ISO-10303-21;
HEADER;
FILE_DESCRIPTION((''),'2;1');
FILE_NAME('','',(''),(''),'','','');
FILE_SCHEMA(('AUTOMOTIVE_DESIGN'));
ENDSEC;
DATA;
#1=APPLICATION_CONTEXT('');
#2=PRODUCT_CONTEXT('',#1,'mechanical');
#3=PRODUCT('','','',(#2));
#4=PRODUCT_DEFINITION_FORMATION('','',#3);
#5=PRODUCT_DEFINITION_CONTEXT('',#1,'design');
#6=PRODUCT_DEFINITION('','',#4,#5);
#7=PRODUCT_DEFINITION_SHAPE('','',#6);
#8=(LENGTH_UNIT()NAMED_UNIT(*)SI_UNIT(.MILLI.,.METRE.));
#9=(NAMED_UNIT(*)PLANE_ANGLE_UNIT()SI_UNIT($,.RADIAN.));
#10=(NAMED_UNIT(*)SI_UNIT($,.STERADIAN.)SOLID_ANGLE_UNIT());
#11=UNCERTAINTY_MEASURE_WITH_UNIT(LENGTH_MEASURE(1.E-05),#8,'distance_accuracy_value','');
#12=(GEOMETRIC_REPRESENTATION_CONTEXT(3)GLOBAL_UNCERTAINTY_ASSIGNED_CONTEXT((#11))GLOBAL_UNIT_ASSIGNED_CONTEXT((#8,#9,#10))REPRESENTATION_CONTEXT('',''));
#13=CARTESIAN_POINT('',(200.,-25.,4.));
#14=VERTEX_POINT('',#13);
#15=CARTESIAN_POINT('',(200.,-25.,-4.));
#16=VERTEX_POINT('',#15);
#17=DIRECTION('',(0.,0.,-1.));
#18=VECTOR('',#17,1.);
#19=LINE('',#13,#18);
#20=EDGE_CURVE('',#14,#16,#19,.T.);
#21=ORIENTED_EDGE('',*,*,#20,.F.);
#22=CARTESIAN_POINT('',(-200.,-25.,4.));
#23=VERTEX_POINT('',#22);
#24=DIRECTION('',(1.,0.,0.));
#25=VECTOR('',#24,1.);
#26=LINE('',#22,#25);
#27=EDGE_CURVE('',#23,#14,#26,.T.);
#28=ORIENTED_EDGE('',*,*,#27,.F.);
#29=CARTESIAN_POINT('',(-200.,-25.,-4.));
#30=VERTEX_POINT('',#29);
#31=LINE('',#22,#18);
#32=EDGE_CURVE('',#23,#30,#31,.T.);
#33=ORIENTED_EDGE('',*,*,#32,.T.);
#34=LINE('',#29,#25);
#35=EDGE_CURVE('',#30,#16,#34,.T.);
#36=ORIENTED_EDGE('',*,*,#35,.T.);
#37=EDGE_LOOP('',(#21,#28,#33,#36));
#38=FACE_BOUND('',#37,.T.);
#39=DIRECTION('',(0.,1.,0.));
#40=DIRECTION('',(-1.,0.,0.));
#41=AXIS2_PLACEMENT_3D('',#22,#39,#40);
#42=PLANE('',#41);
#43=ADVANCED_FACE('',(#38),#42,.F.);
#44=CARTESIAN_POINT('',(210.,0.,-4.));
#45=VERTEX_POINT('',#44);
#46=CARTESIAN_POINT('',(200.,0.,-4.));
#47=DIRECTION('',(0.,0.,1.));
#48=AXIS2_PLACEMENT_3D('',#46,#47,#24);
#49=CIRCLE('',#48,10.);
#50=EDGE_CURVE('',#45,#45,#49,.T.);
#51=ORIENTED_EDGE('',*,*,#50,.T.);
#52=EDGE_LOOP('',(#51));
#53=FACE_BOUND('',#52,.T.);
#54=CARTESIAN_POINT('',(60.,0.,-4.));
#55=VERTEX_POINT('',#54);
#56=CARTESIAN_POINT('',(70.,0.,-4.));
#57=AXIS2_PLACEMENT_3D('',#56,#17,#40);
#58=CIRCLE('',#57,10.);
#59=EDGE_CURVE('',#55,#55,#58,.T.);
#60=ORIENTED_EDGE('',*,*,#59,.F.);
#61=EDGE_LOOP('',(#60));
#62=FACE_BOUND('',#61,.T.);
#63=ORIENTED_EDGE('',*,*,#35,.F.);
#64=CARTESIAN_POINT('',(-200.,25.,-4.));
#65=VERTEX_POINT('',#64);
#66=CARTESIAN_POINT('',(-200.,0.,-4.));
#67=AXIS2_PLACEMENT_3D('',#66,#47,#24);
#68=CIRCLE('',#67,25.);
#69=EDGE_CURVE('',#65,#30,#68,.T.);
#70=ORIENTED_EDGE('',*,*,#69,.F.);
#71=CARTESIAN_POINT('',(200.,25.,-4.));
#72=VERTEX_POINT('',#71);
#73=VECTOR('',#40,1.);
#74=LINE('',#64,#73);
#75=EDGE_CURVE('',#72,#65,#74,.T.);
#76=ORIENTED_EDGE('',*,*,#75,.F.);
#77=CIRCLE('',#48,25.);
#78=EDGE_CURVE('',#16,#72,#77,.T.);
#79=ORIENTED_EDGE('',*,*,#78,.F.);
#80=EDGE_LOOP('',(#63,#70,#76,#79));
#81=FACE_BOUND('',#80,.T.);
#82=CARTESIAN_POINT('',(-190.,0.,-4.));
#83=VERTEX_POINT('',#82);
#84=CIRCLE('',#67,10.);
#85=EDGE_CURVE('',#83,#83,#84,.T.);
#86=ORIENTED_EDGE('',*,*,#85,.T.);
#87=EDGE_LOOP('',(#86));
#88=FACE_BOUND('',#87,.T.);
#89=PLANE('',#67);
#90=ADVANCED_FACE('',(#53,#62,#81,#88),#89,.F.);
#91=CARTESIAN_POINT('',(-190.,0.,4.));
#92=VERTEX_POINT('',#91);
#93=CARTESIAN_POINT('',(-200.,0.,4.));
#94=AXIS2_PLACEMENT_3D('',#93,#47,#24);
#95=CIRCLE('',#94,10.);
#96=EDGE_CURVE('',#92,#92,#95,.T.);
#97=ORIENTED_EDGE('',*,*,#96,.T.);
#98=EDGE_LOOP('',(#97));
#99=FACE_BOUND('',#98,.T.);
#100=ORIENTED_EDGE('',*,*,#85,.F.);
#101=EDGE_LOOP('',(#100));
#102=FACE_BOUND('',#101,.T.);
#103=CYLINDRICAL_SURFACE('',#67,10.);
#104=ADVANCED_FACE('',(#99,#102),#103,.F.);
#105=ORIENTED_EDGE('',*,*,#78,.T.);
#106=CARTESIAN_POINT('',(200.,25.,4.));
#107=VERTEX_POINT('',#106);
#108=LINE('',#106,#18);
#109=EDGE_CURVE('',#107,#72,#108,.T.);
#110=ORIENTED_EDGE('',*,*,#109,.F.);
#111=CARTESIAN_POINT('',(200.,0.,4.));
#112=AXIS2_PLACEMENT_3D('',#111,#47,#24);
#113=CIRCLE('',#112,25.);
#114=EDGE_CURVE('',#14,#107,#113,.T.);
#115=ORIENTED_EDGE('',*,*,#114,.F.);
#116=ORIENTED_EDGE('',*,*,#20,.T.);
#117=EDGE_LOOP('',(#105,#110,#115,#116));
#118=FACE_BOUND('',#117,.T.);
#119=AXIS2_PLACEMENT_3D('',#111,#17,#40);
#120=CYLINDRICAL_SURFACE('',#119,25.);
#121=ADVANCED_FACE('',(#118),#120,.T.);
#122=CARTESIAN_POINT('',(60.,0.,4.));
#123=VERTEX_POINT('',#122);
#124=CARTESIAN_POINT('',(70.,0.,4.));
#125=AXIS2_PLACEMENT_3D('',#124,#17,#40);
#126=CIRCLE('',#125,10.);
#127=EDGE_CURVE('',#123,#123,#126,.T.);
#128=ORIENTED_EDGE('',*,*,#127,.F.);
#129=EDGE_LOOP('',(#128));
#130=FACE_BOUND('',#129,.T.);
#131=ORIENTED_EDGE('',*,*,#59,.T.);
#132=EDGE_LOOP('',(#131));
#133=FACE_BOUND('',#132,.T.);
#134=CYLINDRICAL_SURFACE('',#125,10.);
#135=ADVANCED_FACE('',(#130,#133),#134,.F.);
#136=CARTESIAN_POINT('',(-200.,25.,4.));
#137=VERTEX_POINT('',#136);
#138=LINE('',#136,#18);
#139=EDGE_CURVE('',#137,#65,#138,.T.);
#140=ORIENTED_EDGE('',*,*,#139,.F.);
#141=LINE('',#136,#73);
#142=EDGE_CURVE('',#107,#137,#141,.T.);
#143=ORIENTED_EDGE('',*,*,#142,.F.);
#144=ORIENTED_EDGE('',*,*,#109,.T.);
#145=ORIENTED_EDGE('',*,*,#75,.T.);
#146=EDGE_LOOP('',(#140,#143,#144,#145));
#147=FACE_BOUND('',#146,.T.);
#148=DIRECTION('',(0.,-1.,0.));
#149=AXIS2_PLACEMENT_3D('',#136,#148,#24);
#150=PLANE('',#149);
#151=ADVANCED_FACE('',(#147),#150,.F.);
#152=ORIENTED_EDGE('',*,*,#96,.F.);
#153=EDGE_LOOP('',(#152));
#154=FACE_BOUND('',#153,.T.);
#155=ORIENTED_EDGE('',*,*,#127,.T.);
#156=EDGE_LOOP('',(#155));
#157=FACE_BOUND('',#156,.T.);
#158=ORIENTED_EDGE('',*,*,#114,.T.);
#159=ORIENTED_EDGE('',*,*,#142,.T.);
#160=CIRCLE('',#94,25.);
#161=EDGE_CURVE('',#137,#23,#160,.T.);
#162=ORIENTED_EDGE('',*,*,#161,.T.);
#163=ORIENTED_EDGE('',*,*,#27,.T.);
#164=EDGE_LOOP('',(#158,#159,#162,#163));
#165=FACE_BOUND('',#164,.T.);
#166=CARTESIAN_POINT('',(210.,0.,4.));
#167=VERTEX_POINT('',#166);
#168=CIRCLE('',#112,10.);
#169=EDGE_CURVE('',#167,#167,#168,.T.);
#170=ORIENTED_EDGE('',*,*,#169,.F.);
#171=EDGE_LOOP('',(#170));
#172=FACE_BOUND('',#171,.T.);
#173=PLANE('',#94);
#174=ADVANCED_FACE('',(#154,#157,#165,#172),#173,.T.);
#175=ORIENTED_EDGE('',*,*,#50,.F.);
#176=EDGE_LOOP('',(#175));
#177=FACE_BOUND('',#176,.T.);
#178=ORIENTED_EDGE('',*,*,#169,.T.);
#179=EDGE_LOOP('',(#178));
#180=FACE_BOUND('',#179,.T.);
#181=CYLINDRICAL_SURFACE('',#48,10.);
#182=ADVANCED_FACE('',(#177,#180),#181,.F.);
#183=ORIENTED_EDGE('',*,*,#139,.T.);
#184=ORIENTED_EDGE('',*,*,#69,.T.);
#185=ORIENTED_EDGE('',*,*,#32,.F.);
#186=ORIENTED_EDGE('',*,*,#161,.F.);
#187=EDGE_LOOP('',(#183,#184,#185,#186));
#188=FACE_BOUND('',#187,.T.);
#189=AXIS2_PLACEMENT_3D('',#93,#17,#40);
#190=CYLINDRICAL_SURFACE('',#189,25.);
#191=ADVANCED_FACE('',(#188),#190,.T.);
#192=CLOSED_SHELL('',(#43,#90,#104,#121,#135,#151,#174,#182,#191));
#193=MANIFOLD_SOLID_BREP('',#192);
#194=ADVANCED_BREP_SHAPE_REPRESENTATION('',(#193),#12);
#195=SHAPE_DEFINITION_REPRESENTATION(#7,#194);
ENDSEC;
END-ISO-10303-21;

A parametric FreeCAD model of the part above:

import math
import FreeCAD as App
import Part
import Sketcher

doc = App.newDocument("Part")
body = doc.addObject("PartDesign::Body", "Body")

# Sketch on XY plane
sketch1 = doc.addObject("Sketcher::SketchObject", "Sketch")
body.addObject(sketch1)
sketch1.AttachmentSupport = (doc.XY_Plane, [""])
sketch1.MapMode = "FlatFace"
sketch1.addGeometry(Part.LineSegment(App.Vector(200, 25, 0), App.Vector(-200, 25, 0)), False)
sketch1.addGeometry(Part.ArcOfCircle(Part.Circle(App.Vector(-200, 0, 0), App.Vector(0, 0, 1), 25), math.radians(90), math.radians(270)), False)
sketch1.addGeometry(Part.LineSegment(App.Vector(-200, -25, 0), App.Vector(200, -25, 0)), False)
sketch1.addGeometry(Part.ArcOfCircle(Part.Circle(App.Vector(200, 0, 0), App.Vector(0, 0, 1), 25), math.radians(-90), math.radians(90)), False)
sketch1.addConstraint(Sketcher.Constraint("Tangent", 0, 2, 1, 1))
sketch1.addConstraint(Sketcher.Constraint("Tangent", 1, 2, 2, 1))
sketch1.addConstraint(Sketcher.Constraint("Tangent", 2, 2, 3, 1))
sketch1.addConstraint(Sketcher.Constraint("Tangent", 3, 2, 0, 1))
sketch1.addConstraint(Sketcher.Constraint("Horizontal", 0))
sketch1.addConstraint(Sketcher.Constraint("Horizontal", 2))
sketch1.addConstraint(Sketcher.Constraint("Symmetric", 1, 3, 3, 3, -1, 1))
sketch1.addConstraint(Sketcher.Constraint("Radius", 1, 25.0))
sketch1.addConstraint(Sketcher.Constraint("DistanceX", 0, 2, 0, 1, 400.0))
pad1 = doc.addObject("PartDesign::Pad", "Pad")
body.addObject(pad1)
pad1.Profile = sketch1
pad1.Length = 8
pad1.Midplane = True

# Sketch on XY plane
sketch2 = doc.addObject("Sketcher::SketchObject", "Sketch001")
body.addObject(sketch2)
sketch2.AttachmentSupport = (doc.XY_Plane, [""])
sketch2.MapMode = "FlatFace"
sketch2.AttachmentOffset = App.Placement(App.Vector(0, 0, 4), App.Rotation())
sketch2.addGeometry(Part.Circle(App.Vector(-200, 0, 0), App.Vector(0, 0, 1), 10), False)
sketch2.addGeometry(Part.Circle(App.Vector(200, 0, 0), App.Vector(0, 0, 1), 10), False)
sketch2.addConstraint(Sketcher.Constraint("Equal", 0, 1))
sketch2.addConstraint(Sketcher.Constraint("Symmetric", 0, 3, 1, 3, -1, 1))
sketch2.addConstraint(Sketcher.Constraint("PointOnObject", 0, 3, -1))
sketch2.addConstraint(Sketcher.Constraint("Diameter", 0, 20.0))
sketch2.addConstraint(Sketcher.Constraint("DistanceX", 0, 3, -1, 1, 200.0))
pocket1 = doc.addObject("PartDesign::Pocket", "Pocket")
body.addObject(pocket1)
pocket1.Profile = sketch2
pocket1.Type = "ThroughAll"

# Sketch on XY plane
sketch3 = doc.addObject("Sketcher::SketchObject", "Sketch002")
body.addObject(sketch3)
sketch3.AttachmentSupport = (doc.XY_Plane, [""])
sketch3.MapMode = "FlatFace"
sketch3.AttachmentOffset = App.Placement(App.Vector(0, 0, -4), App.Rotation())
sketch3.addGeometry(Part.Circle(App.Vector(70, 0, 0), App.Vector(0, 0, 1), 10), False)
sketch3.addConstraint(Sketcher.Constraint("PointOnObject", 0, 3, -1))
sketch3.addConstraint(Sketcher.Constraint("Diameter", 0, 20.0))
sketch3.addConstraint(Sketcher.Constraint("DistanceX", -1, 1, 0, 3, 70.0))
pocket2 = doc.addObject("PartDesign::Pocket", "Pocket001")
body.addObject(pocket2)
pocket2.Profile = sketch3
pocket2.Type = "ThroughAll"
pocket2.Reversed = True

doc.recompute()
